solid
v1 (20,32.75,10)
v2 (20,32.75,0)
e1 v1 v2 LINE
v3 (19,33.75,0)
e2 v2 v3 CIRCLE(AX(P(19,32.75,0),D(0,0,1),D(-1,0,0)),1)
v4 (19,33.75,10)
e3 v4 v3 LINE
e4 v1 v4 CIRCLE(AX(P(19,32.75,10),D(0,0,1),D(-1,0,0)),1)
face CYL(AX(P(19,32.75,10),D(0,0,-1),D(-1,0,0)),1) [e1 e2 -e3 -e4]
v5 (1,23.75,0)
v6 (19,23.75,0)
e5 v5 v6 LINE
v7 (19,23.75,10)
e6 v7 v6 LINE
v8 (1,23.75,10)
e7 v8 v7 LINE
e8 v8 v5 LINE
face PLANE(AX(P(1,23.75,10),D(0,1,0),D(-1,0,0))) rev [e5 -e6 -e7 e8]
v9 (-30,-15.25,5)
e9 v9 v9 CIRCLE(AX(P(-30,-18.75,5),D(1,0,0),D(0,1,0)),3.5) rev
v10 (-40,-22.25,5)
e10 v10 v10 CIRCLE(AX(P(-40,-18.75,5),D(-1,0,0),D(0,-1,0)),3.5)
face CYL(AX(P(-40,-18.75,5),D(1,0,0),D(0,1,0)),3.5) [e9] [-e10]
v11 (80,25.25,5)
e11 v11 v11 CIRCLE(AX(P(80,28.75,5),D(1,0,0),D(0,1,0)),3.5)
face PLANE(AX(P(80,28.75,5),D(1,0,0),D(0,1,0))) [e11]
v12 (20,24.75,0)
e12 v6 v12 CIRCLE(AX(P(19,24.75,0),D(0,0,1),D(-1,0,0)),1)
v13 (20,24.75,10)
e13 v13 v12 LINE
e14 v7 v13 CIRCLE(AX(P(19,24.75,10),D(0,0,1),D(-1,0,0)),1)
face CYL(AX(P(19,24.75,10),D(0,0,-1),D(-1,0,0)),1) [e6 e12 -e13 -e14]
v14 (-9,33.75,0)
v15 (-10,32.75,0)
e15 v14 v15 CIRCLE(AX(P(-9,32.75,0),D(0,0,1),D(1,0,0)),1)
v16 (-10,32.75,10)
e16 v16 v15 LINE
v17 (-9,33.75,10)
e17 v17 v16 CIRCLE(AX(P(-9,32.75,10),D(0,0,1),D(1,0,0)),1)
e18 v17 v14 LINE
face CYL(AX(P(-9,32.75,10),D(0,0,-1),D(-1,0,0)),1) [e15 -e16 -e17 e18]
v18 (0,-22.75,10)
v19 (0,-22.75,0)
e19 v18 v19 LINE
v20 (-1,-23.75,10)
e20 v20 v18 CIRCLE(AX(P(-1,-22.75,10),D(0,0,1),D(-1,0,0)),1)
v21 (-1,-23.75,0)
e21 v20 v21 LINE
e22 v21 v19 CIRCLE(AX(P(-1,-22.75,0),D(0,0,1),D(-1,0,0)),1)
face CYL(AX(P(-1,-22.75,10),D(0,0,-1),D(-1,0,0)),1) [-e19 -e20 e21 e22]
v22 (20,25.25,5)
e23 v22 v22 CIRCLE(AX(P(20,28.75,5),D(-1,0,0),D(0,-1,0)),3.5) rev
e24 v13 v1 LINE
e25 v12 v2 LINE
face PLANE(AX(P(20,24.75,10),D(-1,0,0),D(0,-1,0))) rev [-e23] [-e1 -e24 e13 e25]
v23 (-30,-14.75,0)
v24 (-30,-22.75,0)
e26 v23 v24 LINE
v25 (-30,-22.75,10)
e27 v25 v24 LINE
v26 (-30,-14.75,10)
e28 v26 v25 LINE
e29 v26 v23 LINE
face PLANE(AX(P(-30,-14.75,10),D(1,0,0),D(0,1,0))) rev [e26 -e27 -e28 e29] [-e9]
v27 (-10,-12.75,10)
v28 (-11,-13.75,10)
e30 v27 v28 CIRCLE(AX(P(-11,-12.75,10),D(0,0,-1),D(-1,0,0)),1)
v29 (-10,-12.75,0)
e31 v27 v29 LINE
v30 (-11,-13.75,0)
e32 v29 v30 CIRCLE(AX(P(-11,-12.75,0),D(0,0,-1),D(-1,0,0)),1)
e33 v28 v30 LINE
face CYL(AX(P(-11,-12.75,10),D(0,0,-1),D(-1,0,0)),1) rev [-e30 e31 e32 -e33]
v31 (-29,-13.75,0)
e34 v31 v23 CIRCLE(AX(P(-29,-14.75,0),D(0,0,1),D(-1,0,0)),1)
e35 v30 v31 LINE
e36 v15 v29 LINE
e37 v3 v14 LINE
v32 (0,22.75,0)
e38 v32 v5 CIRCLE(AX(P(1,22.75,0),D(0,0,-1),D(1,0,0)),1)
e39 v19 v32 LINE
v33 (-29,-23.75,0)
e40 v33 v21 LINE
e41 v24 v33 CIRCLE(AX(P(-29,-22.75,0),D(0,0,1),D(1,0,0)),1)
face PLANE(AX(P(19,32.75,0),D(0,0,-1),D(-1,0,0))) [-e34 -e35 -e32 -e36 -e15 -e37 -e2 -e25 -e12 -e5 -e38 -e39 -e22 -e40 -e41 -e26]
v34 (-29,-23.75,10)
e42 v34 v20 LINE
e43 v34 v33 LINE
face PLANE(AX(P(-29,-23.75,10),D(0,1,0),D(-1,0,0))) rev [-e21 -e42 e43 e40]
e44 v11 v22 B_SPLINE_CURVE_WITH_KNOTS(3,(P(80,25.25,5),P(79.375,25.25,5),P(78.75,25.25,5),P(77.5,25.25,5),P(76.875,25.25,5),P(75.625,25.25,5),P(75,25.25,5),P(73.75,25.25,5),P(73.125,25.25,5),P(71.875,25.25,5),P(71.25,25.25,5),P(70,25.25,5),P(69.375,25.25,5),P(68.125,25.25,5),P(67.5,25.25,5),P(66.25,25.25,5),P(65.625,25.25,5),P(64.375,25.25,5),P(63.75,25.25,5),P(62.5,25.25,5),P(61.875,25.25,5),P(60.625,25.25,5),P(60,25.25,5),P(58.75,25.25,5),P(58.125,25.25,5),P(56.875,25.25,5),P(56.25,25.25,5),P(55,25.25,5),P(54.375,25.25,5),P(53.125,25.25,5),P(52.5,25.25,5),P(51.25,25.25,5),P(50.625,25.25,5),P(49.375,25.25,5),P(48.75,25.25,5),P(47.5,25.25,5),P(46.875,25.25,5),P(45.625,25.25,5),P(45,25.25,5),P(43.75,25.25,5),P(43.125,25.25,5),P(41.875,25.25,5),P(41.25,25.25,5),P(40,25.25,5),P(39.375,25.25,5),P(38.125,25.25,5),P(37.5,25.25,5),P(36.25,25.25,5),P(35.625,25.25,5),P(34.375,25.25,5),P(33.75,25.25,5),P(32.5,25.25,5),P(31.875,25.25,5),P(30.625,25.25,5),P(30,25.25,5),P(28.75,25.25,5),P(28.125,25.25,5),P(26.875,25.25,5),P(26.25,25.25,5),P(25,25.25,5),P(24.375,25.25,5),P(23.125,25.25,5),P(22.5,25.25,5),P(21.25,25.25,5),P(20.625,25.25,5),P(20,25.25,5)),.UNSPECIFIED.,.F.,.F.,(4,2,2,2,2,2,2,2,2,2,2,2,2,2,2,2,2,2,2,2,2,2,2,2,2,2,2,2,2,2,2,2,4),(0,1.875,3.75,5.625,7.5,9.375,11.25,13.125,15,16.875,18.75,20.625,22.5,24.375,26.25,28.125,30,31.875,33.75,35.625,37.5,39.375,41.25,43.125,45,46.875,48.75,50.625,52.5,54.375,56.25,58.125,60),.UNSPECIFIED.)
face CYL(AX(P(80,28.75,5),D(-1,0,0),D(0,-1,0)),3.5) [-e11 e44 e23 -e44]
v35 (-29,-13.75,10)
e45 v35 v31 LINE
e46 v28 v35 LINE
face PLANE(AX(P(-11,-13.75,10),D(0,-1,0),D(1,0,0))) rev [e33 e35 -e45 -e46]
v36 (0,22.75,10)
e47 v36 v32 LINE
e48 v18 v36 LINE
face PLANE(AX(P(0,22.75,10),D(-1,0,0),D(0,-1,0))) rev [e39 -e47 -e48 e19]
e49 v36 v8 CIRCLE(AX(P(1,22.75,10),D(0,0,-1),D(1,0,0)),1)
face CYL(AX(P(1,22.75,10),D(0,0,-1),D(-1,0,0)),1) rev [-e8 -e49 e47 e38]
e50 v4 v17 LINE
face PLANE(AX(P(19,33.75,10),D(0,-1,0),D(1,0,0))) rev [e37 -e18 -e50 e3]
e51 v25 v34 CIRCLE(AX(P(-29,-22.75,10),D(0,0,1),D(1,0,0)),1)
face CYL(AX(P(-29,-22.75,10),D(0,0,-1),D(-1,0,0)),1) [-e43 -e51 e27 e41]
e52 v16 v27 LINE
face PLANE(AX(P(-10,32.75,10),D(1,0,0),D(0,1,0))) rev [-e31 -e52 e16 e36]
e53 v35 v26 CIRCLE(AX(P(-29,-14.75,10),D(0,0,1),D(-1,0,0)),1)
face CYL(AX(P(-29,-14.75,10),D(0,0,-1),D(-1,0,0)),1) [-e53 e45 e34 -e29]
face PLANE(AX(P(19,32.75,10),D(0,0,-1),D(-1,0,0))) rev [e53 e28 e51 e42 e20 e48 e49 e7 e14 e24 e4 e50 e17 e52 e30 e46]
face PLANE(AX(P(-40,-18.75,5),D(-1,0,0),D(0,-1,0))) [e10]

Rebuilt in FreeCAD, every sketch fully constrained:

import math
import FreeCAD as App
import Part
import Sketcher

V = App.Vector
Q = App.Units.Quantity

doc = App.newDocument("Part")
body = doc.addObject("PartDesign::Body", "Body")

# Sketch on XY plane
sketch1 = body.newObject("Sketcher::SketchObject", "Sketch")
sketch1.AttachmentSupport = (doc.getObject("XY_Plane"), [""])
sketch1.MapMode = "FlatFace"
sketch1.addGeometry(Part.LineSegment(V(0, -22.75, 0), V(0, 22.75, 0)), False)
sketch1.addGeometry(Part.ArcOfCircle(Part.Circle(V(1, 22.75, 0), V(0, 0, 1), 1), math.radians(90), math.radians(180)), False)
sketch1.addGeometry(Part.LineSegment(V(1, 23.75, 0), V(19, 23.75, 0)), False)
sketch1.addGeometry(Part.ArcOfCircle(Part.Circle(V(19, 24.75, 0), V(0, 0, 1), 1), math.radians(-90), math.radians(0)), False)
sketch1.addGeometry(Part.LineSegment(V(20, 24.75, 0), V(20, 32.75, 0)), False)
sketch1.addGeometry(Part.ArcOfCircle(Part.Circle(V(19, 32.75, 0), V(0, 0, 1), 1), math.radians(0), math.radians(90)), False)
sketch1.addGeometry(Part.LineSegment(V(19, 33.75, 0), V(-9, 33.75, 0)), False)
sketch1.addGeometry(Part.ArcOfCircle(Part.Circle(V(-9, 32.75, 0), V(0, 0, 1), 1), math.radians(90), math.radians(180)), False)
sketch1.addGeometry(Part.LineSegment(V(-10, 32.75, 0), V(-10, -12.75, 0)), False)
sketch1.addGeometry(Part.ArcOfCircle(Part.Circle(V(-11, -12.75, 0), V(0, 0, 1), 1), math.radians(-90), math.radians(0)), False)
sketch1.addGeometry(Part.LineSegment(V(-11, -13.75, 0), V(-29, -13.75, 0)), False)
sketch1.addGeometry(Part.ArcOfCircle(Part.Circle(V(-29, -14.75, 0), V(0, 0, 1), 1), math.radians(90), math.radians(180)), False)
sketch1.addGeometry(Part.LineSegment(V(-30, -14.75, 0), V(-30, -22.75, 0)), False)
sketch1.addGeometry(Part.ArcOfCircle(Part.Circle(V(-29, -22.75, 0), V(0, 0, 1), 1), math.radians(-180), math.radians(-90)), False)
sketch1.addGeometry(Part.LineSegment(V(-29, -23.75, 0), V(-1, -23.75, 0)), False)
sketch1.addGeometry(Part.ArcOfCircle(Part.Circle(V(-1, -22.75, 0), V(0, 0, 1), 1), math.radians(-90), math.radians(0)), False)
sketch1.addConstraint(Sketcher.Constraint("Tangent", 0, 2, 1, 2))
sketch1.addConstraint(Sketcher.Constraint("Tangent", 1, 1, 2, 1))
sketch1.addConstraint(Sketcher.Constraint("Tangent", 2, 2, 3, 1))
sketch1.addConstraint(Sketcher.Constraint("Tangent", 3, 2, 4, 1))
sketch1.addConstraint(Sketcher.Constraint("Tangent", 4, 2, 5, 1))
sketch1.addConstraint(Sketcher.Constraint("Tangent", 5, 2, 6, 1))
sketch1.addConstraint(Sketcher.Constraint("Tangent", 6, 2, 7, 1))
sketch1.addConstraint(Sketcher.Constraint("Tangent", 7, 2, 8, 1))
sketch1.addConstraint(Sketcher.Constraint("Tangent", 8, 2, 9, 2))
sketch1.addConstraint(Sketcher.Constraint("Tangent", 9, 1, 10, 1))
sketch1.addConstraint(Sketcher.Constraint("Tangent", 10, 2, 11, 1))
sketch1.addConstraint(Sketcher.Constraint("Tangent", 11, 2, 12, 1))
sketch1.addConstraint(Sketcher.Constraint("Tangent", 12, 2, 13, 1))
sketch1.addConstraint(Sketcher.Constraint("Tangent", 13, 2, 14, 1))
sketch1.addConstraint(Sketcher.Constraint("Tangent", 14, 2, 15, 1))
sketch1.addConstraint(Sketcher.Constraint("Tangent", 15, 2, 0, 1))
sketch1.addConstraint(Sketcher.Constraint("Vertical", 0))
sketch1.addConstraint(Sketcher.Constraint("Horizontal", 2))
sketch1.addConstraint(Sketcher.Constraint("Vertical", 4))
sketch1.addConstraint(Sketcher.Constraint("Horizontal", 6))
sketch1.addConstraint(Sketcher.Constraint("Vertical", 8))
sketch1.addConstraint(Sketcher.Constraint("Horizontal", 10))
sketch1.addConstraint(Sketcher.Constraint("Vertical", 12))
sketch1.addConstraint(Sketcher.Constraint("Horizontal", 14))
sketch1.addConstraint(Sketcher.Constraint("Equal", 1, 3))
sketch1.addConstraint(Sketcher.Constraint("Equal", 3, 5))
sketch1.addConstraint(Sketcher.Constraint("Equal", 5, 7))
sketch1.addConstraint(Sketcher.Constraint("Equal", 7, 9))
sketch1.addConstraint(Sketcher.Constraint("Equal", 9, 11))
sketch1.addConstraint(Sketcher.Constraint("Equal", 11, 13))
sketch1.addConstraint(Sketcher.Constraint("Equal", 13, 15))
sketch1.addConstraint(Sketcher.Constraint("Symmetric", 1, 3, 15, 3, -1, 1))
sketch1.addConstraint(Sketcher.Constraint("Equal", 2, 10))
sketch1.addConstraint(Sketcher.Constraint("Equal", 0, 8))
sketch1.addConstraint(Sketcher.Constraint("Radius", 1, Q("1 mm")))
sketch1.addConstraint(Sketcher.Constraint("DistanceX", 2, 1, 2, 2, Q("18 mm")))
sketch1.addConstraint(Sketcher.Constraint("DistanceX", 6, 2, 6, 1, Q("28 mm")))
sketch1.addConstraint(Sketcher.Constraint("DistanceY", 4, 1, 4, 2, Q("8 mm")))
sketch1.addConstraint(Sketcher.Constraint("DistanceY", 0, 1, 0, 2, Q("45.5 mm")))
pad1 = body.newObject("PartDesign::Pad", "Pad")
pad1.Profile = sketch1
pad1.Length = 10

# Sketch on YZ plane
sketch2 = body.newObject("Sketcher::SketchObject", "Sketch001")
sketch2.AttachmentSupport = (doc.getObject("YZ_Plane"), [""])
sketch2.MapMode = "FlatFace"
sketch2.AttachmentOffset = App.Placement(V(0, 0, 20), App.Rotation())
sketch2.addGeometry(Part.Circle(V(28.75, 5, 0), V(0, 0, 1), 3.5), False)
sketch2.addConstraint(Sketcher.Constraint("Diameter", 0, Q("7 mm")))
sketch2.addConstraint(Sketcher.Constraint("DistanceY", -1, 1, 0, 3, Q("5 mm")))
sketch2.addConstraint(Sketcher.Constraint("DistanceX", -1, 1, 0, 3, Q("28.75 mm")))
pad2 = body.newObject("PartDesign::Pad", "Pad001")
pad2.Profile = sketch2
pad2.Length = 60

# Sketch on YZ plane
sketch3 = body.newObject("Sketcher::SketchObject", "Sketch002")
sketch3.AttachmentSupport = (doc.getObject("YZ_Plane"), [""])
sketch3.MapMode = "FlatFace"
sketch3.AttachmentOffset = App.Placement(V(0, 0, -30), App.Rotation())
sketch3.addGeometry(Part.Circle(V(-18.75, 5, 0), V(0, 0, 1), 3.5), False)
sketch3.addConstraint(Sketcher.Constraint("Diameter", 0, Q("7 mm")))
sketch3.addConstraint(Sketcher.Constraint("DistanceY", -1, 1, 0, 3, Q("5 mm")))
sketch3.addConstraint(Sketcher.Constraint("DistanceX", 0, 3, -1, 1, Q("18.75 mm")))
pad3 = body.newObject("PartDesign::Pad", "Pad002")
pad3.Profile = sketch3
pad3.Length = 10
pad3.Reversed = True

doc.recompute()
